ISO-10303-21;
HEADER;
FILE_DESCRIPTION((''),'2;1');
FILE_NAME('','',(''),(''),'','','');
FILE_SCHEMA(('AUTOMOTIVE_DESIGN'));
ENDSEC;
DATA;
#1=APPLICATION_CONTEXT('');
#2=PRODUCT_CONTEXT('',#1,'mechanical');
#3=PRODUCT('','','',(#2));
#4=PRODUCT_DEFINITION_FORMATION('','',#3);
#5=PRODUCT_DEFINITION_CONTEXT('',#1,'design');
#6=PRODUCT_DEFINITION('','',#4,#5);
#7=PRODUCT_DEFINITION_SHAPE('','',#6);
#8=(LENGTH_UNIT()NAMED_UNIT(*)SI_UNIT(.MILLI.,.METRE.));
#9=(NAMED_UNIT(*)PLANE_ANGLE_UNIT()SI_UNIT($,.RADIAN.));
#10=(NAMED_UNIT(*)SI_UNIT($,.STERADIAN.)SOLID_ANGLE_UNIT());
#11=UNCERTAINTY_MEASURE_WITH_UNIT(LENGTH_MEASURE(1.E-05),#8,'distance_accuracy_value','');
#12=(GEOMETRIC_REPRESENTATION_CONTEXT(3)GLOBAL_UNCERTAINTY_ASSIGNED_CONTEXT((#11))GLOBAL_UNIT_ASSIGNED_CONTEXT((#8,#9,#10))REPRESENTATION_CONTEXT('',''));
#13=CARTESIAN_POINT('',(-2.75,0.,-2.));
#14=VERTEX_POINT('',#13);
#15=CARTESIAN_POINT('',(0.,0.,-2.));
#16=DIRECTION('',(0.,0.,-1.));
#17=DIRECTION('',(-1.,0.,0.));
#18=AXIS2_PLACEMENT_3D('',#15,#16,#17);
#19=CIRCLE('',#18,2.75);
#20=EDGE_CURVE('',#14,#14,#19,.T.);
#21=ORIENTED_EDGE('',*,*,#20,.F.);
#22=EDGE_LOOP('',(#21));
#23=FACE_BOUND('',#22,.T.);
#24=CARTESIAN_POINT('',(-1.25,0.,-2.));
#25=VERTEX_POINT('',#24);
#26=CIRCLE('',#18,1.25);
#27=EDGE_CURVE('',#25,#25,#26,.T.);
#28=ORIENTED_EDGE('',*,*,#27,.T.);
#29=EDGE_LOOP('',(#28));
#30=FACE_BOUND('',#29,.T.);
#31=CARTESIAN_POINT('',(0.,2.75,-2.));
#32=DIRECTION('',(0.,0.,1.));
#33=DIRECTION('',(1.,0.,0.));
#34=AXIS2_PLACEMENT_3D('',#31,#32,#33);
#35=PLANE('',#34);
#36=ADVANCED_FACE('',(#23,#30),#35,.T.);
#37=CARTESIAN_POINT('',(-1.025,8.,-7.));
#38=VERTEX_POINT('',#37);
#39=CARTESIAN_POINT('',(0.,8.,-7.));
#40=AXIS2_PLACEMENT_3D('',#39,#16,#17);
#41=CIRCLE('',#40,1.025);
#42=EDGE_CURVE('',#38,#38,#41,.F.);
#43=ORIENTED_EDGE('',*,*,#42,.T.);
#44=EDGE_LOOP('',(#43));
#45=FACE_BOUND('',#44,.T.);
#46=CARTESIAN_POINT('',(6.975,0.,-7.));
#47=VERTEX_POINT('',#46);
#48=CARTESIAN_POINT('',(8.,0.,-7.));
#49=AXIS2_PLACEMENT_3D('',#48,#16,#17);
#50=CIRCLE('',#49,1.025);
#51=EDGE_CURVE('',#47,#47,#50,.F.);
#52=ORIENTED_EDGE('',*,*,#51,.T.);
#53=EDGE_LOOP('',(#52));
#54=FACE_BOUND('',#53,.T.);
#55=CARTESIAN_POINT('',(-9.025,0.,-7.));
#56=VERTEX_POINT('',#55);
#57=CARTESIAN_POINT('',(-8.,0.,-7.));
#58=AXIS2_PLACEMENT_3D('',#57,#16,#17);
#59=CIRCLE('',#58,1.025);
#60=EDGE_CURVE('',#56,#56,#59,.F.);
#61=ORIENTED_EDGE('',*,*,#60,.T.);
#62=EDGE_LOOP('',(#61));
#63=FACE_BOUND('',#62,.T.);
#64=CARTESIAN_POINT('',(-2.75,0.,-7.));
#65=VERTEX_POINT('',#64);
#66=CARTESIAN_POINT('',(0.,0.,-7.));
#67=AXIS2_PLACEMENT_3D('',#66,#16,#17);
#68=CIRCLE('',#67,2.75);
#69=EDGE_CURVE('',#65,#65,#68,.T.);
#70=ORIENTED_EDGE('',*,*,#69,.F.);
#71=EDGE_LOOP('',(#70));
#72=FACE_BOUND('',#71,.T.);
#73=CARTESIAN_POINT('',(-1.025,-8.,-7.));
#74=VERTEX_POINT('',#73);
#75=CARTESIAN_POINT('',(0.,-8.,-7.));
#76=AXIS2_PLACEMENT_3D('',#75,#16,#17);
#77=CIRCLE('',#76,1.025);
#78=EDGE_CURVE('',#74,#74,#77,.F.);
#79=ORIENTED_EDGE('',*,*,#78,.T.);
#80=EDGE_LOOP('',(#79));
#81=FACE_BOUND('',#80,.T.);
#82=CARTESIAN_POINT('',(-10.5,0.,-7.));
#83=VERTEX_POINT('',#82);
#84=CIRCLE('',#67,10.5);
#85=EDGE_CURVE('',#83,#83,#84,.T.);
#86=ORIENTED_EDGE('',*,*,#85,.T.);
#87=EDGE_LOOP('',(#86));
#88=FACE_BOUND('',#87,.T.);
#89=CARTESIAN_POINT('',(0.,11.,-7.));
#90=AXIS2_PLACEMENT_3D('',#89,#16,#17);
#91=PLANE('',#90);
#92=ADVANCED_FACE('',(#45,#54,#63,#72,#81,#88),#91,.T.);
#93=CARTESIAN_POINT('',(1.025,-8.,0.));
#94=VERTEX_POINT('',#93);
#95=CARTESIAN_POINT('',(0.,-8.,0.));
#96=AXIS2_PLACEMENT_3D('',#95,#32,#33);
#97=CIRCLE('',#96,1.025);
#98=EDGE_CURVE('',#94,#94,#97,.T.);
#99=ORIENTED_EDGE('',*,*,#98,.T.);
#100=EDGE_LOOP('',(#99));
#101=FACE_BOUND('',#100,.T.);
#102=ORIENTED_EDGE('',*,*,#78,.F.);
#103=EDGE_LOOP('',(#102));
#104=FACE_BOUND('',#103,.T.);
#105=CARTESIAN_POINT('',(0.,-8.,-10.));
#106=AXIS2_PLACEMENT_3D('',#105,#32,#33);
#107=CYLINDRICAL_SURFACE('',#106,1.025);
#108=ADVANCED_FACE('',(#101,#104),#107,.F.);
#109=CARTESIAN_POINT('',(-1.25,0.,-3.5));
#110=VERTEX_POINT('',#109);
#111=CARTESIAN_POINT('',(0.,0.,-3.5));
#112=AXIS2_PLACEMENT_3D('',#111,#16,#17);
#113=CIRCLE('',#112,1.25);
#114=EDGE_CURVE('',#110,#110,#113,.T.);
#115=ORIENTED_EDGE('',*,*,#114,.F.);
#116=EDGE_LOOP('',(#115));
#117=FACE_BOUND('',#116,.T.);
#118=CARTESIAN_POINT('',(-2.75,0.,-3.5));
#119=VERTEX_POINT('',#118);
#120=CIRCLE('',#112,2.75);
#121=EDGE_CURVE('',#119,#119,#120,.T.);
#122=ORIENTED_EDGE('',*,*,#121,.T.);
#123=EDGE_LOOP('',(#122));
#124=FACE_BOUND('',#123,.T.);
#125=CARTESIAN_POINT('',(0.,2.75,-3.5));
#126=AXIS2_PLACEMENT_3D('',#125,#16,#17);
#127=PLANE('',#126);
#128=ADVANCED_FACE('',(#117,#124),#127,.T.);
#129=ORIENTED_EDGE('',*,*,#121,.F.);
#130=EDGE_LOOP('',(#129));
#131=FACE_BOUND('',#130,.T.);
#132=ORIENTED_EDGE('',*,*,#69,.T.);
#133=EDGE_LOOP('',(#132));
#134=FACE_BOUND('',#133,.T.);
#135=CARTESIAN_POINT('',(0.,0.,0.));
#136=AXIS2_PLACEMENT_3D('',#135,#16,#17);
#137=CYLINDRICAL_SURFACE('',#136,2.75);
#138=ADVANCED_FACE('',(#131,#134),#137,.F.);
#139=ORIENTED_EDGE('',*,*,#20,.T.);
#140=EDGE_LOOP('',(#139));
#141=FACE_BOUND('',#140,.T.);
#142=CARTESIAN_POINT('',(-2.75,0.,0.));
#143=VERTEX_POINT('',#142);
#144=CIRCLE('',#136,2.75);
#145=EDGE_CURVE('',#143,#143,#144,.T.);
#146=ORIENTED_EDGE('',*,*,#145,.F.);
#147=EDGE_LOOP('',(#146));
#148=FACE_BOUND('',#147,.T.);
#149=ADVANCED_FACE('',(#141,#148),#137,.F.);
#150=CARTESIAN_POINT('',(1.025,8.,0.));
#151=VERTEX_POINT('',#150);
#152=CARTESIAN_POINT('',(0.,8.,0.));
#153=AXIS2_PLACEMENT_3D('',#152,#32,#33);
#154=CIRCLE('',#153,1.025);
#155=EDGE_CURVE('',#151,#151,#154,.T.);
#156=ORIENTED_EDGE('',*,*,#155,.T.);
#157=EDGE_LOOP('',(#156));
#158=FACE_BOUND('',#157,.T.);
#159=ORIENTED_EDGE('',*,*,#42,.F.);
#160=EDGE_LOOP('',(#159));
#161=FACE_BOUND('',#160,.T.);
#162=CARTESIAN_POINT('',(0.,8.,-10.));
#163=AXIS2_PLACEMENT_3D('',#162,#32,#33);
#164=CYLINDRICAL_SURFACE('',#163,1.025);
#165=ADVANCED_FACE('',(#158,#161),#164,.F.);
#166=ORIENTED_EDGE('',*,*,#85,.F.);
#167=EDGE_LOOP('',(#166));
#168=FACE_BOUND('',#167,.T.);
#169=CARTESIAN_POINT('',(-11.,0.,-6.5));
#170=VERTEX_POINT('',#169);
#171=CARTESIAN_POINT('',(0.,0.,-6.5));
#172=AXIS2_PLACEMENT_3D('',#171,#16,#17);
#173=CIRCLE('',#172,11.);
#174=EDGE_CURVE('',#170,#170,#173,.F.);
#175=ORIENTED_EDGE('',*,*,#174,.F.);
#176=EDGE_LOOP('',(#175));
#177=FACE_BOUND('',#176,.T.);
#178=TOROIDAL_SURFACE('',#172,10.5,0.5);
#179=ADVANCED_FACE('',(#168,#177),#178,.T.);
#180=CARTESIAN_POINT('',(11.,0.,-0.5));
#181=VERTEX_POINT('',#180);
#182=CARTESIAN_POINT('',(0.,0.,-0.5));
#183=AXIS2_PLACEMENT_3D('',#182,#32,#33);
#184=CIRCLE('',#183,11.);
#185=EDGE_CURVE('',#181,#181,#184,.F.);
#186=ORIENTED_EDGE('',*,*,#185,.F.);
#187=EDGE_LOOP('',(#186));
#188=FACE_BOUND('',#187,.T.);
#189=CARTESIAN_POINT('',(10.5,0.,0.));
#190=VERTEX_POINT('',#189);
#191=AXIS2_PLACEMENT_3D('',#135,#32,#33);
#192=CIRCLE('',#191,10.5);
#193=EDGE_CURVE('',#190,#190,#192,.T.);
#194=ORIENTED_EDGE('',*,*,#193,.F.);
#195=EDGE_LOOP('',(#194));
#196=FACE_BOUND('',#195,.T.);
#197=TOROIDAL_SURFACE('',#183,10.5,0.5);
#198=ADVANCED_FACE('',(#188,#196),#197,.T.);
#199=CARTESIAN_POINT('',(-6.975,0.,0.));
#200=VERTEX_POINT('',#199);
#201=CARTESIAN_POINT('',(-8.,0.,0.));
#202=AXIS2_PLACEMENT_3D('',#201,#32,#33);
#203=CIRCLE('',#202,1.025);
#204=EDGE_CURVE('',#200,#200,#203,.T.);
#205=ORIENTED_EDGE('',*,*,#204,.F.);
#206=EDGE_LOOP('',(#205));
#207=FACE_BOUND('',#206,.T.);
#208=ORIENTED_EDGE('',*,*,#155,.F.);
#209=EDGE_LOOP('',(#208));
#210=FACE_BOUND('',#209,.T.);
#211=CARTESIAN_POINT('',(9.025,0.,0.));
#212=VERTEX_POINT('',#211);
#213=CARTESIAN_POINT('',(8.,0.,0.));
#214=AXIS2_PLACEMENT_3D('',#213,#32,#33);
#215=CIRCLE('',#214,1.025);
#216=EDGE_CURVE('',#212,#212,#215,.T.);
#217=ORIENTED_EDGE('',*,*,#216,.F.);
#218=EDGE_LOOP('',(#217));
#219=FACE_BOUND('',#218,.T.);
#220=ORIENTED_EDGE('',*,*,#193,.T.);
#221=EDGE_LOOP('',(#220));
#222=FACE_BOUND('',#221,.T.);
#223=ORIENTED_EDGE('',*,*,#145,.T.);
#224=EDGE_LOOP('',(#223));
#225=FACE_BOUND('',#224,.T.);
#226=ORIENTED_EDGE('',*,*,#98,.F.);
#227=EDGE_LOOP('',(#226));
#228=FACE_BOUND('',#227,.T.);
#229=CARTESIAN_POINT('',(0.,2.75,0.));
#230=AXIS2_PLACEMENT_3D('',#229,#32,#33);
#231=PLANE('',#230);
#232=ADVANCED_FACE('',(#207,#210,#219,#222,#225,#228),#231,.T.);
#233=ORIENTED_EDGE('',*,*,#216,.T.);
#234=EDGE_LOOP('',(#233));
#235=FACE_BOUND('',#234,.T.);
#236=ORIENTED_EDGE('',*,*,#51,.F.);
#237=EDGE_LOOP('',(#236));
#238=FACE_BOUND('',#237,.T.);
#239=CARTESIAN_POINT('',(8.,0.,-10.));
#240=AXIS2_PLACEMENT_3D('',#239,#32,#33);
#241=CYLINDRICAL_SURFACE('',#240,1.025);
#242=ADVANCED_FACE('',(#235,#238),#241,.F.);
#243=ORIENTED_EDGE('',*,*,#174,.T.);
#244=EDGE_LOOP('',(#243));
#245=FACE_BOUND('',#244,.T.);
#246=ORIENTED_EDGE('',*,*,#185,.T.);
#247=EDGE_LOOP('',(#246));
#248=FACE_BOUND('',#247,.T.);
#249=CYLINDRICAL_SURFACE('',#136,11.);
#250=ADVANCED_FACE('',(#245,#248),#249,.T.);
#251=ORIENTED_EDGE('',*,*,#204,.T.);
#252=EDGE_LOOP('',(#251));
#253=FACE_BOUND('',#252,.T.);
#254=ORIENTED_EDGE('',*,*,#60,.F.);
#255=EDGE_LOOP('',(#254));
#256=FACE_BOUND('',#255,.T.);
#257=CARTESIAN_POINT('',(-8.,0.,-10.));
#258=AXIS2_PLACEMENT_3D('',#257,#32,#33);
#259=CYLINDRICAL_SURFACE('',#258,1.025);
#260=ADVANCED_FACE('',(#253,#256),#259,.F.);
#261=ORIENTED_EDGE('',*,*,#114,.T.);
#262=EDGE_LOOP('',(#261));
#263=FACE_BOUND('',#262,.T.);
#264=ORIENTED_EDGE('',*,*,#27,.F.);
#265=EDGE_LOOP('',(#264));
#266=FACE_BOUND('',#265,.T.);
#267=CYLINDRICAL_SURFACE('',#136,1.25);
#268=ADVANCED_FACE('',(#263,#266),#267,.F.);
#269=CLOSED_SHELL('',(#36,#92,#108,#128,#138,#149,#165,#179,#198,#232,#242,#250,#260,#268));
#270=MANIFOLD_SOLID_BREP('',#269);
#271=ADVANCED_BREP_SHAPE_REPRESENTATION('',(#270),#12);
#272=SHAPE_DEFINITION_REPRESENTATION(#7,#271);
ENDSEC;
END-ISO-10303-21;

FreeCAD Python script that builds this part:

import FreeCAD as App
import Part
import Sketcher
from FreeCAD import Vector
Q = App.Units.Quantity


def edges_at(feature, points):
    """Names of the edges that pass closest to the given points."""
    edges = feature.Shape.Edges
    near = lambda p: min(range(len(edges)), key=lambda i: edges[i].distToShape(Part.Vertex(*p))[0])
    return sorted({f"Edge{near(p) + 1}" for p in points})


def add_polygon(sketch, points):
    """Adds a closed chain of lines whose ends are joined by coincident constraints."""
    first, n = sketch.GeometryCount, len(points)
    for a, b in zip(points, points[1:] + points[:1]):
        sketch.addGeometry(Part.LineSegment(App.Vector(*a, 0), App.Vector(*b, 0)), False)
    for i in range(n):
        sketch.addConstraint(Sketcher.Constraint("Coincident", first + i, 2, first + (i + 1) % n, 1))

doc = App.newDocument("Part")
params = doc.addObject("Spreadsheet::Sheet", "Params")
for row, (alias, value) in enumerate([
    ("sketch1_height", "7 mm"),
    ("sketch1_height2", "2 mm"),
    ("sketch1_width", "1.5 mm"),
    ("sketch1_width2", "8.25 mm"),
    ("revolution_angle", "360 deg"),
    ("sketch2_height", "7 mm"),
    ("groove_angle", "360 deg"),
    ("linearpattern_pitch", "11.313708 mm"),
    ("linearpattern2_pitch", "16 mm"),
    ("linearpattern3_pitch", "11.313708 mm"),
    ("linearpattern4_pitch", "8 mm"),
    ("fillet_radius", "0.5 mm"),
    ("sketch3_diameter", "2.05 mm"),
    ("pocket1_length", "10 mm"),
], start=1):
    params.set(f"A{row}", alias)
    params.set(f"B{row}", "=" + value)
    params.setAlias(f"B{row}", alias)

body = doc.addObject("PartDesign::Body", "Body")

# Sketch on YZ plane
sketch1 = doc.addObject("Sketcher::SketchObject", "Sketch")
body.addObject(sketch1)
sketch1.AttachmentSupport = (doc.YZ_Plane, [""])
sketch1.MapMode = "FlatFace"
add_polygon(sketch1, [(1.2, -2), (1.2, -3.5), (2.8, -3.5), (2.8, -7), (11, -7), (11, 0), (2.8, 0), (2.8, -2)])  # lines 0-7
sketch1.addConstraint([
    Sketcher.Constraint("Vertical", 0),
    Sketcher.Constraint("Horizontal", 1),
    Sketcher.Constraint("Vertical", 2),
    Sketcher.Constraint("Horizontal", 3),
    Sketcher.Constraint("Vertical", 4),
    Sketcher.Constraint("Horizontal", 5),
    Sketcher.Constraint("Vertical", 6),
    Sketcher.Constraint("Horizontal", 7),
    Sketcher.Constraint("PointOnObject", 4, 2, -1),
    Sketcher.Constraint("Vertical", 2, 2, 5, 2),
    Sketcher.Constraint("Equal", 7, 0),
    Sketcher.Constraint("DistanceY", 4, 1, 4, 2, Q("7 mm")),
    Sketcher.Constraint("DistanceY", 6, 2, 6, 1, Q("2 mm")),
    Sketcher.Constraint("DistanceX", 1, 1, 1, 2, Q("1.5 mm")),
    Sketcher.Constraint("DistanceX", -1, 1, 3, 2, Q("11 mm")),
    Sketcher.Constraint("DistanceX", 3, 1, 3, 2, Q("8.25 mm")),
])
sketch1.setExpression("Constraints[19]", "Params.sketch1_height")
sketch1.setExpression("Constraints[20]", "Params.sketch1_height2")
sketch1.setExpression("Constraints[21]", "Params.sketch1_width")
sketch1.setExpression("Constraints[23]", "Params.sketch1_width2")
revolution = doc.addObject("PartDesign::Revolution", "Revolution")
body.addObject(revolution)
revolution.Profile = sketch1
revolution.ReferenceAxis = (sketch1, ["V_Axis"])
revolution.setExpression("Angle", "Params.revolution_angle")

# Sketch on YZ plane
sketch2 = doc.addObject("Sketcher::SketchObject", "Sketch001")
body.addObject(sketch2)
sketch2.AttachmentSupport = (doc.YZ_Plane, [""])
sketch2.MapMode = "FlatFace"
add_polygon(sketch2, [(8, -7), (8, 0), (6.97, 0), (7.2, -0.13), (7.2, -6.87), (6.97, -7)])  # lines 0-5
sketch2.addGeometry(Part.LineSegment(Vector(8, 0, 0), Vector(8, -7, 0)), True)  # axis
sketch2.addConstraint([
    Sketcher.Constraint("Vertical", 0),
    Sketcher.Constraint("Horizontal", 1),
    Sketcher.Constraint("Vertical", 3),
    Sketcher.Constraint("Horizontal", 5),
    Sketcher.Constraint("Vertical", 6),
    Sketcher.Constraint("Coincident", 6, 1, 0, 2),
    Sketcher.Constraint("PointOnObject", 0, 2, -1),
    Sketcher.Constraint("Horizontal", 4, 2, 6, 2),
    Sketcher.Constraint("Vertical", 1, 2, 4, 2),
    Sketcher.Constraint("Equal", 2, 4),
    Sketcher.Constraint("DistanceY", 0, 1, 0, 2, Q("7 mm")),
    Sketcher.Constraint("Angle", 2, Q("-30 deg")),
    Sketcher.Constraint("DistanceX", -1, 1, 0, 2, Q("8 mm")),
    Sketcher.Constraint("DistanceX", -1, 1, 2, 2, Q("7.2 mm")),
    Sketcher.Constraint("DistanceX", 1, 2, 1, 1, Q("1.025 mm")),
])
sketch2.setExpression("Constraints[16]", "Params.sketch2_height")
groove = doc.addObject("PartDesign::Groove", "Groove")
body.addObject(groove)
groove.Profile = sketch2
groove.ReferenceAxis = (sketch2, ["Axis0"])
groove.setExpression("Angle", "Params.groove_angle")
doc.recompute()

datumline = doc.addObject("PartDesign::Line", "DatumLine")
body.addObject(datumline)
datumline.Placement = App.Placement(Vector(0, 0, 0), App.Rotation(Vector(0, 0, 1), Vector(0.707106781, -0.707106781, 0)))
linearpattern = doc.addObject("PartDesign::LinearPattern", "LinearPattern")
body.addObject(linearpattern)
linearpattern.Originals = [groove]
linearpattern.Direction = (datumline, [""])
linearpattern.Mode = "offset"
linearpattern.setExpression("Offset", "Params.linearpattern_pitch")
linearpattern.Occurrences = 2
body.Tip = linearpattern
doc.recompute()

linearpattern2 = doc.addObject("PartDesign::LinearPattern", "LinearPattern001")
body.addObject(linearpattern2)
linearpattern2.Originals = [groove]
linearpattern2.Direction = (doc.Y_Axis, [""])
linearpattern2.Mode = "offset"
linearpattern2.setExpression("Offset", "Params.linearpattern2_pitch")
linearpattern2.Occurrences = 2
linearpattern2.Reversed = True
body.Tip = linearpattern2
doc.recompute()

datumline2 = doc.addObject("PartDesign::Line", "DatumLine001")
body.addObject(datumline2)
datumline2.Placement = App.Placement(Vector(0, 0, 0), App.Rotation(Vector(0, 0, 1), Vector(-0.707106781, -0.707106781, 0)))
linearpattern3 = doc.addObject("PartDesign::LinearPattern", "LinearPattern002")
body.addObject(linearpattern3)
linearpattern3.Originals = [groove]
linearpattern3.Direction = (datumline2, [""])
linearpattern3.Mode = "offset"
linearpattern3.setExpression("Offset", "Params.linearpattern3_pitch")
linearpattern3.Occurrences = 2
body.Tip = linearpattern3
doc.recompute()

linearpattern4 = doc.addObject("PartDesign::LinearPattern", "LinearPattern003")
body.addObject(linearpattern4)
linearpattern4.Originals = [groove]
linearpattern4.Direction = (doc.Y_Axis, [""])
linearpattern4.Mode = "offset"
linearpattern4.setExpression("Offset", "Params.linearpattern4_pitch")
linearpattern4.Occurrences = 2
linearpattern4.Reversed = True
body.Tip = linearpattern4
doc.recompute()

fillet = doc.addObject("PartDesign::Fillet", "Fillet")
body.addObject(fillet)
fillet.Base = (linearpattern4, edges_at(linearpattern4, [(0, -11, -7), (0, -11, 0)]))
fillet.setExpression("Radius", "Params.fillet_radius")

# Sketch on XY plane
sketch3 = doc.addObject("Sketcher::SketchObject", "Sketch002")
body.addObject(sketch3)
sketch3.AttachmentSupport = (doc.XY_Plane, [""])
sketch3.MapMode = "FlatFace"
sketch3.addGeometry([
    Part.Circle(Vector(0, 8, 0), Vector(0, 0, 1), 1),
    Part.Circle(Vector(-8, 0, 0), Vector(0, 0, 1), 1),
    Part.Circle(Vector(8, 0, 0), Vector(0, 0, 1), 1),
    Part.Circle(Vector(0, -8, 0), Vector(0, 0, 1), 1),
], False)
sketch3.addConstraint([
    Sketcher.Constraint("Equal", 0, 1),
    Sketcher.Constraint("Equal", 1, 2),
    Sketcher.Constraint("Equal", 2, 3),
    Sketcher.Constraint("Symmetric", 1, 3, 2, 3, -1, 1),
    Sketcher.Constraint("Symmetric", 0, 3, 3, 3, -1, 1),
    Sketcher.Constraint("PointOnObject", 0, 3, -2),
    Sketcher.Constraint("PointOnObject", 1, 3, -1),
    Sketcher.Constraint("Diameter", 0, Q("2.05 mm")),
    Sketcher.Constraint("DistanceY", -1, 1, 0, 3, Q("8 mm")),
    Sketcher.Constraint("DistanceX", 1, 3, -1, 1, Q("8 mm")),
])
sketch3.setExpression("Constraints[7]", "Params.sketch3_diameter")
pocket1 = doc.addObject("PartDesign::Pocket", "Pocket")
body.addObject(pocket1)
pocket1.Profile = sketch3
pocket1.setExpression("Length", "Params.pocket1_length")

doc.recompute()
